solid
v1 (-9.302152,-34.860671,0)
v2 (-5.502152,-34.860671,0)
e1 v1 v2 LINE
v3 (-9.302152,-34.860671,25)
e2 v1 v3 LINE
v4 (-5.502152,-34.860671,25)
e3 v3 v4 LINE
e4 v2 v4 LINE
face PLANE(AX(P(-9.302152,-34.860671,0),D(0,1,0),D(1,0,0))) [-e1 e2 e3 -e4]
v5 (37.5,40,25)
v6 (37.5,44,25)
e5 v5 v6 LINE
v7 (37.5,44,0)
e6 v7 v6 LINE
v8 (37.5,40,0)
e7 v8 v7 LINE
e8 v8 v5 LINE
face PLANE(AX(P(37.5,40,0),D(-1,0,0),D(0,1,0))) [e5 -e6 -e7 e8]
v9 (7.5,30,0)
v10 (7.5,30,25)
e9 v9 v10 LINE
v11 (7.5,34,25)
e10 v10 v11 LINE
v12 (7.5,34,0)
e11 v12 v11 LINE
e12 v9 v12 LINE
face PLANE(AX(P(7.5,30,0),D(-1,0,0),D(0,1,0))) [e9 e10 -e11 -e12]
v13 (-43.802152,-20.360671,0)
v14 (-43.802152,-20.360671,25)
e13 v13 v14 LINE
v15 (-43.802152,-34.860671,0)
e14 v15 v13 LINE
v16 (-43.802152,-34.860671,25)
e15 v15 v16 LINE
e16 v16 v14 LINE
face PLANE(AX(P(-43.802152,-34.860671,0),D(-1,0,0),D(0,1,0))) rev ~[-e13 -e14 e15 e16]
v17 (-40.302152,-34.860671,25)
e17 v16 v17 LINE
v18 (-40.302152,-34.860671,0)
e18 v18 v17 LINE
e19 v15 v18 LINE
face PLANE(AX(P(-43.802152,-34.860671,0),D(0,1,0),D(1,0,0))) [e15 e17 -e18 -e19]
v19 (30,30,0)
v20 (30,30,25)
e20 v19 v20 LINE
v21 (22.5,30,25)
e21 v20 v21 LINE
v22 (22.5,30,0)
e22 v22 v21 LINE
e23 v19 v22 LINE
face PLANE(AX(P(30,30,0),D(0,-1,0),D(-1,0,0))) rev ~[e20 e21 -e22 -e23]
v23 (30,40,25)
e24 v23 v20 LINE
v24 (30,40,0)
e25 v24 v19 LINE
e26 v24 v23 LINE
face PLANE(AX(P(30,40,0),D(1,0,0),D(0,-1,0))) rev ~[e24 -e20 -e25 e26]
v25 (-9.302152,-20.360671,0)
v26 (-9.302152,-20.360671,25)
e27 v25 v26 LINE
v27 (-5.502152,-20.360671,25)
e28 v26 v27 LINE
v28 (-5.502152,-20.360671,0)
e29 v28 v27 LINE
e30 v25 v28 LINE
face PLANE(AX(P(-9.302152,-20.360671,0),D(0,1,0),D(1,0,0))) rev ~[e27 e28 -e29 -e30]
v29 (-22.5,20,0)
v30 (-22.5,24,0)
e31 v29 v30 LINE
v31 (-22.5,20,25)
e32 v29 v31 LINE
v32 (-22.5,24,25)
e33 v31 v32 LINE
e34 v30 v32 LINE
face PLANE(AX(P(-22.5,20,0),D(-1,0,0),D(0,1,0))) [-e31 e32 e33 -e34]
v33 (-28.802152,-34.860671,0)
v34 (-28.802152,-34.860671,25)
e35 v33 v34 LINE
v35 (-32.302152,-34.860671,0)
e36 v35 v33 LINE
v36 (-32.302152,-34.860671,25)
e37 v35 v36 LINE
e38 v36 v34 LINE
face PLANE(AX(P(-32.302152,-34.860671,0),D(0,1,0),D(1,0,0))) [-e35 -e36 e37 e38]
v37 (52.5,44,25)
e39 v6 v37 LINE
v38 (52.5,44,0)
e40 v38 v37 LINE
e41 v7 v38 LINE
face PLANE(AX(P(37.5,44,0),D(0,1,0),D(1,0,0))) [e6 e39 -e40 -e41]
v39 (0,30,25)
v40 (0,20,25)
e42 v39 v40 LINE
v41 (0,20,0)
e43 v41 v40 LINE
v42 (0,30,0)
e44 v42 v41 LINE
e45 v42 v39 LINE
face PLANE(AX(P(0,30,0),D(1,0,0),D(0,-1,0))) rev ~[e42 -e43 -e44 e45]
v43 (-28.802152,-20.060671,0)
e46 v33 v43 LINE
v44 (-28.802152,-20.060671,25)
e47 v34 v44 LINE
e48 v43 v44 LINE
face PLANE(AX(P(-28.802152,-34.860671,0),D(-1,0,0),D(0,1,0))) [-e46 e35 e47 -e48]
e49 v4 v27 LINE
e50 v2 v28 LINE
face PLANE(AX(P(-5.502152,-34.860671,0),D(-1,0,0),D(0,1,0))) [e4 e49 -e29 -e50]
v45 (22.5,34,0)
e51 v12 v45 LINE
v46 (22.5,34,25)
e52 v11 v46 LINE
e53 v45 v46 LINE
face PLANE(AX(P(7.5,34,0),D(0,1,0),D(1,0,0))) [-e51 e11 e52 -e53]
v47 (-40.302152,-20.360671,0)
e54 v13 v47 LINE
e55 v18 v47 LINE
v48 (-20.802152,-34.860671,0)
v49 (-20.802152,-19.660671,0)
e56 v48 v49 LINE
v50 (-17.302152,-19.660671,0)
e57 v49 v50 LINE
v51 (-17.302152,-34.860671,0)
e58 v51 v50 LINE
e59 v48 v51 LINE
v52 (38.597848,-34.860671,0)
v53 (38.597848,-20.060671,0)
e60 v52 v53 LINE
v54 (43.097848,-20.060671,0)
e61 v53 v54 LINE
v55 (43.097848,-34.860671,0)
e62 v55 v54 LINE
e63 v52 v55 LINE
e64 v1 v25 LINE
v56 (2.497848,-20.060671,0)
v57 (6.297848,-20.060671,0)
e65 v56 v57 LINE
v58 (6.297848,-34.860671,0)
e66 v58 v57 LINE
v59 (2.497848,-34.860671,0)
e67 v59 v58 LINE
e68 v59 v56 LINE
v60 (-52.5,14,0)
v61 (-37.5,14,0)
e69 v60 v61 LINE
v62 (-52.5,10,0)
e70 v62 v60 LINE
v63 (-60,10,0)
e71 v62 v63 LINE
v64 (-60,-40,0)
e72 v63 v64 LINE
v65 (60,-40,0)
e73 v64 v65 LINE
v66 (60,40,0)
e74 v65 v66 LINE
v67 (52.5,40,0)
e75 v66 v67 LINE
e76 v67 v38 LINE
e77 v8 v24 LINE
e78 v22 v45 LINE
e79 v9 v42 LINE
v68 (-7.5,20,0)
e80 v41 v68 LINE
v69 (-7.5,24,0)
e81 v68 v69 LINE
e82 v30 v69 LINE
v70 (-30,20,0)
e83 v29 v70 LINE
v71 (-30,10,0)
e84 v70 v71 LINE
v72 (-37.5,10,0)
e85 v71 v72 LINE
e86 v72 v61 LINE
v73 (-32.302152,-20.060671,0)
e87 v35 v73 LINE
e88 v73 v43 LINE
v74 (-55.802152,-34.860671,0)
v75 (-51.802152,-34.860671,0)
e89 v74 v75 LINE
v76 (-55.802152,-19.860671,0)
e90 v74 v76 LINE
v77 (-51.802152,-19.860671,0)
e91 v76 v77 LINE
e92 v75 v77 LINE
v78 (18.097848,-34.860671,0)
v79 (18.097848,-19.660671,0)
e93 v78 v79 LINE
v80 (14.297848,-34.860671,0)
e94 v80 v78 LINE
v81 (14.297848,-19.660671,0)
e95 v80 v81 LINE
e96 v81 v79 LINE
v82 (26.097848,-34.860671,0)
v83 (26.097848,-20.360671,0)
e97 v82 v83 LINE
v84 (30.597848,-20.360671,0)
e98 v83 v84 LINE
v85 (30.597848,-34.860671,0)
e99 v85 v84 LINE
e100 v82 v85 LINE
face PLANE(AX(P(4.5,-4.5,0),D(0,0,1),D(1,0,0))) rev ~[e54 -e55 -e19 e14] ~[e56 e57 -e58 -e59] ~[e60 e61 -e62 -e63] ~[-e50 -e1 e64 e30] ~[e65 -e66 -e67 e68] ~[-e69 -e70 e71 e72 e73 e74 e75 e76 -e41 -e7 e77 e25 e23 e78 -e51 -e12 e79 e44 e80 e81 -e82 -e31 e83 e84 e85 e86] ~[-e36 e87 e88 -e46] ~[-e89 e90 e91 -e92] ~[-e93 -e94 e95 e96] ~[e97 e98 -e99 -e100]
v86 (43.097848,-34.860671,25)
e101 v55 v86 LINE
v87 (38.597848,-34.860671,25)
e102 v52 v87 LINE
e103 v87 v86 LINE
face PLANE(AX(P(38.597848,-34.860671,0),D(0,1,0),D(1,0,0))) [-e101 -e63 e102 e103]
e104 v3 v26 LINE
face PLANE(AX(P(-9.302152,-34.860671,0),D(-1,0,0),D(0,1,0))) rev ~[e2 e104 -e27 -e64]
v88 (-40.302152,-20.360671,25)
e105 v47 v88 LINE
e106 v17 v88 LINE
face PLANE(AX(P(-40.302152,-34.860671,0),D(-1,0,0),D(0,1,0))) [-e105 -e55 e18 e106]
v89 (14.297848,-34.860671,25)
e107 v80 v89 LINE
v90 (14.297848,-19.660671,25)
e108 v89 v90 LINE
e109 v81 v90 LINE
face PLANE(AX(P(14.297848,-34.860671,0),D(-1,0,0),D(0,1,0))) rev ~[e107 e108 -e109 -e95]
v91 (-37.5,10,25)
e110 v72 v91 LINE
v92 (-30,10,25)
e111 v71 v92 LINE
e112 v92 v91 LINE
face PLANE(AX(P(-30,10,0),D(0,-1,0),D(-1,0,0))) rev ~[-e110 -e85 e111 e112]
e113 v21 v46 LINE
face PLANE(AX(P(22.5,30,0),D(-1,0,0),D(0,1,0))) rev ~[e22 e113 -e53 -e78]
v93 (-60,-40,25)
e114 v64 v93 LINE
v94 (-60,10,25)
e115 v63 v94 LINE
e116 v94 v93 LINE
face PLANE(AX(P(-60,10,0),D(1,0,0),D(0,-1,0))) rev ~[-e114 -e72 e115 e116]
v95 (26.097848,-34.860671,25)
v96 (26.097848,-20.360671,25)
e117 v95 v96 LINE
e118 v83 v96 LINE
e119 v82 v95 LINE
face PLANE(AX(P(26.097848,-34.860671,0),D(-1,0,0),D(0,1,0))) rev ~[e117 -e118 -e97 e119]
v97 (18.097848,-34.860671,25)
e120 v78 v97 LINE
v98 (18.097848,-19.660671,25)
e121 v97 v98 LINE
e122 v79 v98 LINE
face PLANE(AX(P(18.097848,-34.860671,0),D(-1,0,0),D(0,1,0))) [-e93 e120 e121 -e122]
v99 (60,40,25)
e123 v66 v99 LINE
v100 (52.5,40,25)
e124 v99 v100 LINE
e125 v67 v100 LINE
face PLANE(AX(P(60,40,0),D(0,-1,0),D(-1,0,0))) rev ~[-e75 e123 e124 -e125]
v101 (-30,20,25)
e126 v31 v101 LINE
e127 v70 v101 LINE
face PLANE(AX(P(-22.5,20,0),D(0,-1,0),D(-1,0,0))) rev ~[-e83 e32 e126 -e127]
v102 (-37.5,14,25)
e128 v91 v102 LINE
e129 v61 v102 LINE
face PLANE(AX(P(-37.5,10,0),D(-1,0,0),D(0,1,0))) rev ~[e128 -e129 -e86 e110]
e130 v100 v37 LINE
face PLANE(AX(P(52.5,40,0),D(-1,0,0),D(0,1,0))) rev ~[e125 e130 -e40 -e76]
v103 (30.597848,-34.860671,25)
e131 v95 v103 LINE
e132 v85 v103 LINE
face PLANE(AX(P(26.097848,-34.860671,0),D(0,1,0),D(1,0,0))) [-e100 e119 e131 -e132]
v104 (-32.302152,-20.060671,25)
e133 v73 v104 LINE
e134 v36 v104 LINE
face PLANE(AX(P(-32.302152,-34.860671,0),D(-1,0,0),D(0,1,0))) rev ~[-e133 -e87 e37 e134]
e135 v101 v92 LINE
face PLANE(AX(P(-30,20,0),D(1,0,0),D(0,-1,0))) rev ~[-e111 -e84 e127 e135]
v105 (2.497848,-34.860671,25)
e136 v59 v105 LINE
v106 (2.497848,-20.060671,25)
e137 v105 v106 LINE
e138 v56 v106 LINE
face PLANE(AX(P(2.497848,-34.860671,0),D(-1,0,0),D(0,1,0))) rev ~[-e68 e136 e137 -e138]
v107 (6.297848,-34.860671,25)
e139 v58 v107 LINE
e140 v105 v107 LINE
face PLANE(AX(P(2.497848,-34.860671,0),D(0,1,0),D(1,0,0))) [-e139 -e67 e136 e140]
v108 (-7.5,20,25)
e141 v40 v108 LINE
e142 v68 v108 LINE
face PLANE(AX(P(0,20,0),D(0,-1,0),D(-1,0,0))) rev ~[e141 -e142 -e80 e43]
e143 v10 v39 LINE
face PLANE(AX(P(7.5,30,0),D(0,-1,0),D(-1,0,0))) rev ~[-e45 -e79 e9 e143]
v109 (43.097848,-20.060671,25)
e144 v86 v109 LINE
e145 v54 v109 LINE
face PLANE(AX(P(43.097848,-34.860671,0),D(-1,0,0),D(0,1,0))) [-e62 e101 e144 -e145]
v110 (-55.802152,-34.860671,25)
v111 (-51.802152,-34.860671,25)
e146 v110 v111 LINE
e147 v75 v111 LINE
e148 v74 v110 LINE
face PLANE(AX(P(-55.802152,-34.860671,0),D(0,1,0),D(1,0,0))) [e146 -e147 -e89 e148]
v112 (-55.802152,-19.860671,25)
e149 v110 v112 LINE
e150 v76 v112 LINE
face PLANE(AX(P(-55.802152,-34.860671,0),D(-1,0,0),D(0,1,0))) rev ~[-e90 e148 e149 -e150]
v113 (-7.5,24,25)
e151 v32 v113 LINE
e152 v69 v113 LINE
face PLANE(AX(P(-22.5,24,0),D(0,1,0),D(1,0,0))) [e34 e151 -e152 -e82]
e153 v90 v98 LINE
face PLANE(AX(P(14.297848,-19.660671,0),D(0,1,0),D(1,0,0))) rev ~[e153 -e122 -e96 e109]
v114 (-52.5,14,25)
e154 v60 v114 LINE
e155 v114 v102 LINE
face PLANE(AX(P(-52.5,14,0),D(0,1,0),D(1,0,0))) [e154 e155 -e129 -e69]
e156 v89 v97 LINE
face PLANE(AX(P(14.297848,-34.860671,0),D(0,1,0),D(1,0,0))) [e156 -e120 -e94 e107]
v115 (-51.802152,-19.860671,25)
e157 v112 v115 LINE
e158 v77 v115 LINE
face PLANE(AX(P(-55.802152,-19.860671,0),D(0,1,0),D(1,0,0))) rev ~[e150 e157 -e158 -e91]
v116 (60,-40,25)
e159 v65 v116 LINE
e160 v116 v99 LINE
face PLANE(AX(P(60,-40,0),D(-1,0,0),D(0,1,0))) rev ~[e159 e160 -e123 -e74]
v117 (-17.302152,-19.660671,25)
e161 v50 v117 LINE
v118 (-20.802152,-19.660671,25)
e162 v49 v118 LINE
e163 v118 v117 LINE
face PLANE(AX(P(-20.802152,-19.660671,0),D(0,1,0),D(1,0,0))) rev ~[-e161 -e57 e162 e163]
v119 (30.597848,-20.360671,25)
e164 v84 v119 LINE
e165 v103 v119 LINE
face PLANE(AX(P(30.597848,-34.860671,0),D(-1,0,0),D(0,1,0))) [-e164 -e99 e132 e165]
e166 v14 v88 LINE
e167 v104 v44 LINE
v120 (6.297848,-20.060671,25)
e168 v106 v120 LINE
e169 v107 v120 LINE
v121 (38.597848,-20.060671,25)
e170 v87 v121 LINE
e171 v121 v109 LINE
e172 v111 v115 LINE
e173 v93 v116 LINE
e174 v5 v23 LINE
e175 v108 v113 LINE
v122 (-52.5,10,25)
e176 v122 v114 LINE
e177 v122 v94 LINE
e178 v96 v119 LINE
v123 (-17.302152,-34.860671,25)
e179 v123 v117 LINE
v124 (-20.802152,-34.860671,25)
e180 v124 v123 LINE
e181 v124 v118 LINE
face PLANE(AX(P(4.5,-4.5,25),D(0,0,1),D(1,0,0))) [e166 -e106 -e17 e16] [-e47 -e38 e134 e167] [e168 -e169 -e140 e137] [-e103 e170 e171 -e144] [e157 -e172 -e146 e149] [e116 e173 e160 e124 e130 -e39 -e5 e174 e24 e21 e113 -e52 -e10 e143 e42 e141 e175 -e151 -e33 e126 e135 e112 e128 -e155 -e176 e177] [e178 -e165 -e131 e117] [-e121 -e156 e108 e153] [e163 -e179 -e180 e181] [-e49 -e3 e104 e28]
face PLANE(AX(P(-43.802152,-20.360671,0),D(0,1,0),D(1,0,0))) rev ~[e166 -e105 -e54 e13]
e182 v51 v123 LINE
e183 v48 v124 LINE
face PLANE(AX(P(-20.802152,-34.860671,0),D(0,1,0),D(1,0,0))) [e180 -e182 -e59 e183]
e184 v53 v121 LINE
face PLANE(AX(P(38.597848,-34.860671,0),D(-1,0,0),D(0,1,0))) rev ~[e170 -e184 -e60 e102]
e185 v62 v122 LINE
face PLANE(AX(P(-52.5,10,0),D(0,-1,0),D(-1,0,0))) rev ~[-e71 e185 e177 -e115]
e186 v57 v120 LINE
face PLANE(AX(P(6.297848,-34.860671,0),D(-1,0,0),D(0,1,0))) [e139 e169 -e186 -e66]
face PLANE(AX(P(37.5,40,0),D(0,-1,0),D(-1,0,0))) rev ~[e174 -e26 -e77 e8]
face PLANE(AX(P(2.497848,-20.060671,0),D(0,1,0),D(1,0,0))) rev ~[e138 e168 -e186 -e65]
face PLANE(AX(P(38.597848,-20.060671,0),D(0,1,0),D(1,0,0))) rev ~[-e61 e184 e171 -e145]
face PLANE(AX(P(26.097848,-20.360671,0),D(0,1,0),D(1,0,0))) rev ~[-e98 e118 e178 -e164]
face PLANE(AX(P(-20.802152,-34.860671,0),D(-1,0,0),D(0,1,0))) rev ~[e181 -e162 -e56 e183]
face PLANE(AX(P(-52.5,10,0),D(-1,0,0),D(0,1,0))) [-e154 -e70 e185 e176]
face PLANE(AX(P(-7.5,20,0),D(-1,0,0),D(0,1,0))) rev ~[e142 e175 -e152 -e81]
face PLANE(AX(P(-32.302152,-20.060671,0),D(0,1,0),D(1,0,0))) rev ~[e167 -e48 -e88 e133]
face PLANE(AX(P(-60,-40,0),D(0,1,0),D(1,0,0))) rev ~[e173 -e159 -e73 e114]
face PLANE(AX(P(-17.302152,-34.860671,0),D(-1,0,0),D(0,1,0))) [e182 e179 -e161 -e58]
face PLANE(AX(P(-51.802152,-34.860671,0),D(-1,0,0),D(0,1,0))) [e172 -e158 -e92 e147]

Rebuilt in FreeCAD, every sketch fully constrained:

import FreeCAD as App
import Part
import Sketcher

V = App.Vector


def add_polygon(sketch, points):
    """Adds a closed chain of lines whose ends are joined by coincident constraints."""
    first, n = sketch.GeometryCount, len(points)
    for a, b in zip(points, points[1:] + points[:1]):
        sketch.addGeometry(Part.LineSegment(App.Vector(*a, 0), App.Vector(*b, 0)), False)
    for i in range(n):
        sketch.addConstraint(Sketcher.Constraint("Coincident", first + i, 2, first + (i + 1) % n, 1))

doc = App.newDocument("Part")
body = doc.addObject("PartDesign::Body", "Body")

sketch1 = doc.addObject("Sketcher::SketchObject", "Sketch")
body.addObject(sketch1)
sketch1.AttachmentSupport = (doc.XY_Plane, [""])
sketch1.MapMode = "FlatFace"
add_polygon(sketch1, [(30, 40), (30, 30), (22.5, 30), (22.5, 34), (7.5, 34), (7.5, 30), (0, 30), (0, 20), (-7.5, 20), (-7.5, 24), (-22.5, 24), (-22.5, 20), (-30, 20), (-30, 10), (-37.5, 10), (-37.5, 14), (-52.5, 14), (-52.5, 10), (-60, 10), (-60, -40), (60, -40), (60, 40), (52.5, 40), (52.5, 44), (37.5, 44), (37.5, 40)])
add_polygon(sketch1, [(-51.8, -34.9), (-55.8, -34.9), (-55.8, -19.9), (-51.8, -19.9)])
add_polygon(sketch1, [(-40.3, -34.9), (-43.8, -34.9), (-43.8, -20.4), (-40.3, -20.4)])
add_polygon(sketch1, [(-28.8, -34.9), (-32.3, -34.9), (-32.3, -20.1), (-28.8, -20.1)])
add_polygon(sketch1, [(-5.5, -34.9), (-9.3, -34.9), (-9.3, -20.4), (-5.5, -20.4)])
add_polygon(sketch1, [(6.3, -34.9), (2.5, -34.9), (2.5, -20.1), (6.3, -20.1)])
add_polygon(sketch1, [(30.6, -34.9), (26.1, -34.9), (26.1, -20.4), (30.6, -20.4)])
add_polygon(sketch1, [(43.1, -34.9), (38.6, -34.9), (38.6, -20.1), (43.1, -20.1)])
add_polygon(sketch1, [(-17.3, -34.9), (-20.8, -34.9), (-20.8, -19.7), (-17.3, -19.7)])
add_polygon(sketch1, [(18.1, -34.9), (14.3, -34.9), (14.3, -19.7), (18.1, -19.7)])
sketch1.addConstraint(Sketcher.Constraint("Vertical", 0))
sketch1.addConstraint(Sketcher.Constraint("Horizontal", 1))
sketch1.addConstraint(Sketcher.Constraint("Vertical", 2))
sketch1.addConstraint(Sketcher.Constraint("Horizontal", 3))
sketch1.addConstraint(Sketcher.Constraint("Vertical", 4))
sketch1.addConstraint(Sketcher.Constraint("Horizontal", 5))
sketch1.addConstraint(Sketcher.Constraint("Vertical", 6))
sketch1.addConstraint(Sketcher.Constraint("Horizontal", 7))
sketch1.addConstraint(Sketcher.Constraint("Vertical", 8))
sketch1.addConstraint(Sketcher.Constraint("Horizontal", 9))
sketch1.addConstraint(Sketcher.Constraint("Vertical", 10))
sketch1.addConstraint(Sketcher.Constraint("Horizontal", 11))
sketch1.addConstraint(Sketcher.Constraint("Vertical", 12))
sketch1.addConstraint(Sketcher.Constraint("Horizontal", 13))
sketch1.addConstraint(Sketcher.Constraint("Vertical", 14))
sketch1.addConstraint(Sketcher.Constraint("Horizontal", 15))
sketch1.addConstraint(Sketcher.Constraint("Vertical", 16))
sketch1.addConstraint(Sketcher.Constraint("Horizontal", 17))
sketch1.addConstraint(Sketcher.Constraint("Vertical", 18))
sketch1.addConstraint(Sketcher.Constraint("Horizontal", 19))
sketch1.addConstraint(Sketcher.Constraint("Vertical", 20))
sketch1.addConstraint(Sketcher.Constraint("Horizontal", 21))
sketch1.addConstraint(Sketcher.Constraint("Vertical", 22))
sketch1.addConstraint(Sketcher.Constraint("Horizontal", 23))
sketch1.addConstraint(Sketcher.Constraint("Vertical", 24))
sketch1.addConstraint(Sketcher.Constraint("Horizontal", 25))
sketch1.addConstraint(Sketcher.Constraint("Horizontal", 26))
sketch1.addConstraint(Sketcher.Constraint("Vertical", 27))
sketch1.addConstraint(Sketcher.Constraint("Horizontal", 28))
sketch1.addConstraint(Sketcher.Constraint("Vertical", 29))
sketch1.addConstraint(Sketcher.Constraint("Horizontal", 30))
sketch1.addConstraint(Sketcher.Constraint("Vertical", 31))
sketch1.addConstraint(Sketcher.Constraint("Horizontal", 32))
sketch1.addConstraint(Sketcher.Constraint("Vertical", 33))
sketch1.addConstraint(Sketcher.Constraint("Horizontal", 34))
sketch1.addConstraint(Sketcher.Constraint("Vertical", 35))
sketch1.addConstraint(Sketcher.Constraint("Horizontal", 36))
sketch1.addConstraint(Sketcher.Constraint("Vertical", 37))
sketch1.addConstraint(Sketcher.Constraint("Horizontal", 38))
sketch1.addConstraint(Sketcher.Constraint("Vertical", 39))
sketch1.addConstraint(Sketcher.Constraint("Horizontal", 40))
sketch1.addConstraint(Sketcher.Constraint("Vertical", 41))
sketch1.addConstraint(Sketcher.Constraint("Horizontal", 42))
sketch1.addConstraint(Sketcher.Constraint("Vertical", 43))
sketch1.addConstraint(Sketcher.Constraint("Horizontal", 44))
sketch1.addConstraint(Sketcher.Constraint("Vertical", 45))
sketch1.addConstraint(Sketcher.Constraint("Horizontal", 46))
sketch1.addConstraint(Sketcher.Constraint("Vertical", 47))
sketch1.addConstraint(Sketcher.Constraint("Horizontal", 48))
sketch1.addConstraint(Sketcher.Constraint("Vertical", 49))
sketch1.addConstraint(Sketcher.Constraint("Horizontal", 50))
sketch1.addConstraint(Sketcher.Constraint("Vertical", 51))
sketch1.addConstraint(Sketcher.Constraint("Horizontal", 52))
sketch1.addConstraint(Sketcher.Constraint("Vertical", 53))
sketch1.addConstraint(Sketcher.Constraint("Horizontal", 54))
sketch1.addConstraint(Sketcher.Constraint("Vertical", 55))
sketch1.addConstraint(Sketcher.Constraint("Horizontal", 56))
sketch1.addConstraint(Sketcher.Constraint("Vertical", 57))
sketch1.addConstraint(Sketcher.Constraint("Horizontal", 58))
sketch1.addConstraint(Sketcher.Constraint("Vertical", 59))
sketch1.addConstraint(Sketcher.Constraint("Horizontal", 60))
sketch1.addConstraint(Sketcher.Constraint("Vertical", 61))
sketch1.addConstraint(Sketcher.Constraint("Symmetric", 18, 2, 20, 2, -1, 1))
sketch1.addConstraint(Sketcher.Constraint("PointOnObject", 5, 2, -2))
sketch1.addConstraint(Sketcher.Constraint("Horizontal", 1, 2, 4, 2))
sketch1.addConstraint(Sketcher.Constraint("Horizontal", 7, 2, 10, 2))
sketch1.addConstraint(Sketcher.Constraint("Horizontal", 13, 2, 16, 2))
sketch1.addConstraint(Sketcher.Constraint("Horizontal", 21, 2, 24, 2))
sketch1.addConstraint(Sketcher.Constraint("Horizontal", 29, 2, 30, 2))
sketch1.addConstraint(Sketcher.Constraint("Horizontal", 33, 2, 34, 2))
sketch1.addConstraint(Sketcher.Constraint("Horizontal", 37, 2, 38, 2))
sketch1.addConstraint(Sketcher.Constraint("Horizontal", 32, 2, 39, 2))
sketch1.addConstraint(Sketcher.Constraint("Horizontal", 41, 2, 42, 2))
sketch1.addConstraint(Sketcher.Constraint("Horizontal", 36, 2, 43, 2))
sketch1.addConstraint(Sketcher.Constraint("Horizontal", 45, 2, 46, 2))
sketch1.addConstraint(Sketcher.Constraint("Horizontal", 40, 2, 47, 2))
sketch1.addConstraint(Sketcher.Constraint("Horizontal", 49, 2, 50, 2))
sketch1.addConstraint(Sketcher.Constraint("Horizontal", 44, 2, 51, 2))
sketch1.addConstraint(Sketcher.Constraint("Horizontal", 53, 2, 54, 2))
sketch1.addConstraint(Sketcher.Constraint("Horizontal", 57, 2, 58, 2))
sketch1.addConstraint(Sketcher.Constraint("Horizontal", 56, 2, 59, 2))
sketch1.addConstraint(Sketcher.Constraint("Equal", 1, 5))
sketch1.addConstraint(Sketcher.Constraint("Equal", 5, 7))
sketch1.addConstraint(Sketcher.Constraint("Equal", 3, 9))
sketch1.addConstraint(Sketcher.Constraint("Equal", 7, 11))
sketch1.addConstraint(Sketcher.Constraint("Equal", 11, 13))
sketch1.addConstraint(Sketcher.Constraint("Equal", 9, 15))
sketch1.addConstraint(Sketcher.Constraint("Equal", 13, 17))
sketch1.addConstraint(Sketcher.Constraint("Equal", 17, 21))
sketch1.addConstraint(Sketcher.Constraint("Equal", 15, 23))
sketch1.addConstraint(Sketcher.Constraint("Equal", 32, 34))
sketch1.addConstraint(Sketcher.Constraint("Equal", 40, 42))
sketch1.addConstraint(Sketcher.Constraint("Equal", 48, 50))
sketch1.addConstraint(Sketcher.Constraint("Equal", 36, 54))
sketch1.addConstraint(Sketcher.Constraint("Equal", 44, 58))
sketch1.addConstraint(Sketcher.Constraint("Equal", 28, 2))
sketch1.addConstraint(Sketcher.Constraint("Equal", 0, 6))
sketch1.addConstraint(Sketcher.Constraint("Equal", 4, 8))
sketch1.addConstraint(Sketcher.Constraint("Equal", 6, 12))
sketch1.addConstraint(Sketcher.Constraint("Equal", 10, 14))
sketch1.addConstraint(Sketcher.Constraint("Equal", 16, 22))
sketch1.addConstraint(Sketcher.Constraint("Equal", 23, 27))
sketch1.addConstraint(Sketcher.Constraint("DistanceX", 3, 2, 3, 1, 15.0))
sketch1.addConstraint(Sketcher.Constraint("DistanceX", 19, 1, 19, 2, 120.0))
sketch1.addConstraint(Sketcher.Constraint("DistanceX", 26, 2, 26, 1, 4.0))
sketch1.addConstraint(Sketcher.Constraint("DistanceY", 0, 2, 0, 1, 10.0))
sketch1.addConstraint(Sketcher.Constraint("DistanceY", 18, 2, 18, 1, 50.0))
sketch1.addConstraint(Sketcher.Constraint("DistanceX", 30, 2, 30, 1, 3.5))
sketch1.addConstraint(Sketcher.Constraint("DistanceX", 38, 2, 38, 1, 3.8))
sketch1.addConstraint(Sketcher.Constraint("DistanceX", 46, 2, 46, 1, 4.5))
sketch1.addConstraint(Sketcher.Constraint("DistanceY", 31, 1, 31, 2, 14.5))
sketch1.addConstraint(Sketcher.Constraint("DistanceY", 35, 1, 35, 2, 14.8))
sketch1.addConstraint(Sketcher.Constraint("DistanceY", 55, 1, 55, 2, 15.2))
sketch1.addConstraint(Sketcher.Constraint("DistanceY", 26, 2, -1, 1, 34.860671))
sketch1.addConstraint(Sketcher.Constraint("DistanceX", 36, 2, -1, 1, 28.802152))
sketch1.addConstraint(Sketcher.Constraint("DistanceX", 40, 2, -1, 1, 5.502152))
sketch1.addConstraint(Sketcher.Constraint("DistanceX", 54, 2, -1, 1, 20.802152))
sketch1.addConstraint(Sketcher.Constraint("DistanceX", 26, 2, -1, 1, 55.802152))
sketch1.addConstraint(Sketcher.Constraint("DistanceX", 30, 2, -1, 1, 43.802152))
sketch1.addConstraint(Sketcher.Constraint("DistanceX", -1, 1, 42, 2, 2.497848))
sketch1.addConstraint(Sketcher.Constraint("DistanceX", -1, 1, 46, 2, 26.097848))
sketch1.addConstraint(Sketcher.Constraint("DistanceX", -1, 1, 50, 2, 38.597848))
sketch1.addConstraint(Sketcher.Constraint("DistanceX", -1, 1, 58, 2, 14.297848))
pad1 = doc.addObject("PartDesign::Pad", "Pad")
body.addObject(pad1)
pad1.Profile = sketch1
pad1.Length = 25

doc.recompute()
